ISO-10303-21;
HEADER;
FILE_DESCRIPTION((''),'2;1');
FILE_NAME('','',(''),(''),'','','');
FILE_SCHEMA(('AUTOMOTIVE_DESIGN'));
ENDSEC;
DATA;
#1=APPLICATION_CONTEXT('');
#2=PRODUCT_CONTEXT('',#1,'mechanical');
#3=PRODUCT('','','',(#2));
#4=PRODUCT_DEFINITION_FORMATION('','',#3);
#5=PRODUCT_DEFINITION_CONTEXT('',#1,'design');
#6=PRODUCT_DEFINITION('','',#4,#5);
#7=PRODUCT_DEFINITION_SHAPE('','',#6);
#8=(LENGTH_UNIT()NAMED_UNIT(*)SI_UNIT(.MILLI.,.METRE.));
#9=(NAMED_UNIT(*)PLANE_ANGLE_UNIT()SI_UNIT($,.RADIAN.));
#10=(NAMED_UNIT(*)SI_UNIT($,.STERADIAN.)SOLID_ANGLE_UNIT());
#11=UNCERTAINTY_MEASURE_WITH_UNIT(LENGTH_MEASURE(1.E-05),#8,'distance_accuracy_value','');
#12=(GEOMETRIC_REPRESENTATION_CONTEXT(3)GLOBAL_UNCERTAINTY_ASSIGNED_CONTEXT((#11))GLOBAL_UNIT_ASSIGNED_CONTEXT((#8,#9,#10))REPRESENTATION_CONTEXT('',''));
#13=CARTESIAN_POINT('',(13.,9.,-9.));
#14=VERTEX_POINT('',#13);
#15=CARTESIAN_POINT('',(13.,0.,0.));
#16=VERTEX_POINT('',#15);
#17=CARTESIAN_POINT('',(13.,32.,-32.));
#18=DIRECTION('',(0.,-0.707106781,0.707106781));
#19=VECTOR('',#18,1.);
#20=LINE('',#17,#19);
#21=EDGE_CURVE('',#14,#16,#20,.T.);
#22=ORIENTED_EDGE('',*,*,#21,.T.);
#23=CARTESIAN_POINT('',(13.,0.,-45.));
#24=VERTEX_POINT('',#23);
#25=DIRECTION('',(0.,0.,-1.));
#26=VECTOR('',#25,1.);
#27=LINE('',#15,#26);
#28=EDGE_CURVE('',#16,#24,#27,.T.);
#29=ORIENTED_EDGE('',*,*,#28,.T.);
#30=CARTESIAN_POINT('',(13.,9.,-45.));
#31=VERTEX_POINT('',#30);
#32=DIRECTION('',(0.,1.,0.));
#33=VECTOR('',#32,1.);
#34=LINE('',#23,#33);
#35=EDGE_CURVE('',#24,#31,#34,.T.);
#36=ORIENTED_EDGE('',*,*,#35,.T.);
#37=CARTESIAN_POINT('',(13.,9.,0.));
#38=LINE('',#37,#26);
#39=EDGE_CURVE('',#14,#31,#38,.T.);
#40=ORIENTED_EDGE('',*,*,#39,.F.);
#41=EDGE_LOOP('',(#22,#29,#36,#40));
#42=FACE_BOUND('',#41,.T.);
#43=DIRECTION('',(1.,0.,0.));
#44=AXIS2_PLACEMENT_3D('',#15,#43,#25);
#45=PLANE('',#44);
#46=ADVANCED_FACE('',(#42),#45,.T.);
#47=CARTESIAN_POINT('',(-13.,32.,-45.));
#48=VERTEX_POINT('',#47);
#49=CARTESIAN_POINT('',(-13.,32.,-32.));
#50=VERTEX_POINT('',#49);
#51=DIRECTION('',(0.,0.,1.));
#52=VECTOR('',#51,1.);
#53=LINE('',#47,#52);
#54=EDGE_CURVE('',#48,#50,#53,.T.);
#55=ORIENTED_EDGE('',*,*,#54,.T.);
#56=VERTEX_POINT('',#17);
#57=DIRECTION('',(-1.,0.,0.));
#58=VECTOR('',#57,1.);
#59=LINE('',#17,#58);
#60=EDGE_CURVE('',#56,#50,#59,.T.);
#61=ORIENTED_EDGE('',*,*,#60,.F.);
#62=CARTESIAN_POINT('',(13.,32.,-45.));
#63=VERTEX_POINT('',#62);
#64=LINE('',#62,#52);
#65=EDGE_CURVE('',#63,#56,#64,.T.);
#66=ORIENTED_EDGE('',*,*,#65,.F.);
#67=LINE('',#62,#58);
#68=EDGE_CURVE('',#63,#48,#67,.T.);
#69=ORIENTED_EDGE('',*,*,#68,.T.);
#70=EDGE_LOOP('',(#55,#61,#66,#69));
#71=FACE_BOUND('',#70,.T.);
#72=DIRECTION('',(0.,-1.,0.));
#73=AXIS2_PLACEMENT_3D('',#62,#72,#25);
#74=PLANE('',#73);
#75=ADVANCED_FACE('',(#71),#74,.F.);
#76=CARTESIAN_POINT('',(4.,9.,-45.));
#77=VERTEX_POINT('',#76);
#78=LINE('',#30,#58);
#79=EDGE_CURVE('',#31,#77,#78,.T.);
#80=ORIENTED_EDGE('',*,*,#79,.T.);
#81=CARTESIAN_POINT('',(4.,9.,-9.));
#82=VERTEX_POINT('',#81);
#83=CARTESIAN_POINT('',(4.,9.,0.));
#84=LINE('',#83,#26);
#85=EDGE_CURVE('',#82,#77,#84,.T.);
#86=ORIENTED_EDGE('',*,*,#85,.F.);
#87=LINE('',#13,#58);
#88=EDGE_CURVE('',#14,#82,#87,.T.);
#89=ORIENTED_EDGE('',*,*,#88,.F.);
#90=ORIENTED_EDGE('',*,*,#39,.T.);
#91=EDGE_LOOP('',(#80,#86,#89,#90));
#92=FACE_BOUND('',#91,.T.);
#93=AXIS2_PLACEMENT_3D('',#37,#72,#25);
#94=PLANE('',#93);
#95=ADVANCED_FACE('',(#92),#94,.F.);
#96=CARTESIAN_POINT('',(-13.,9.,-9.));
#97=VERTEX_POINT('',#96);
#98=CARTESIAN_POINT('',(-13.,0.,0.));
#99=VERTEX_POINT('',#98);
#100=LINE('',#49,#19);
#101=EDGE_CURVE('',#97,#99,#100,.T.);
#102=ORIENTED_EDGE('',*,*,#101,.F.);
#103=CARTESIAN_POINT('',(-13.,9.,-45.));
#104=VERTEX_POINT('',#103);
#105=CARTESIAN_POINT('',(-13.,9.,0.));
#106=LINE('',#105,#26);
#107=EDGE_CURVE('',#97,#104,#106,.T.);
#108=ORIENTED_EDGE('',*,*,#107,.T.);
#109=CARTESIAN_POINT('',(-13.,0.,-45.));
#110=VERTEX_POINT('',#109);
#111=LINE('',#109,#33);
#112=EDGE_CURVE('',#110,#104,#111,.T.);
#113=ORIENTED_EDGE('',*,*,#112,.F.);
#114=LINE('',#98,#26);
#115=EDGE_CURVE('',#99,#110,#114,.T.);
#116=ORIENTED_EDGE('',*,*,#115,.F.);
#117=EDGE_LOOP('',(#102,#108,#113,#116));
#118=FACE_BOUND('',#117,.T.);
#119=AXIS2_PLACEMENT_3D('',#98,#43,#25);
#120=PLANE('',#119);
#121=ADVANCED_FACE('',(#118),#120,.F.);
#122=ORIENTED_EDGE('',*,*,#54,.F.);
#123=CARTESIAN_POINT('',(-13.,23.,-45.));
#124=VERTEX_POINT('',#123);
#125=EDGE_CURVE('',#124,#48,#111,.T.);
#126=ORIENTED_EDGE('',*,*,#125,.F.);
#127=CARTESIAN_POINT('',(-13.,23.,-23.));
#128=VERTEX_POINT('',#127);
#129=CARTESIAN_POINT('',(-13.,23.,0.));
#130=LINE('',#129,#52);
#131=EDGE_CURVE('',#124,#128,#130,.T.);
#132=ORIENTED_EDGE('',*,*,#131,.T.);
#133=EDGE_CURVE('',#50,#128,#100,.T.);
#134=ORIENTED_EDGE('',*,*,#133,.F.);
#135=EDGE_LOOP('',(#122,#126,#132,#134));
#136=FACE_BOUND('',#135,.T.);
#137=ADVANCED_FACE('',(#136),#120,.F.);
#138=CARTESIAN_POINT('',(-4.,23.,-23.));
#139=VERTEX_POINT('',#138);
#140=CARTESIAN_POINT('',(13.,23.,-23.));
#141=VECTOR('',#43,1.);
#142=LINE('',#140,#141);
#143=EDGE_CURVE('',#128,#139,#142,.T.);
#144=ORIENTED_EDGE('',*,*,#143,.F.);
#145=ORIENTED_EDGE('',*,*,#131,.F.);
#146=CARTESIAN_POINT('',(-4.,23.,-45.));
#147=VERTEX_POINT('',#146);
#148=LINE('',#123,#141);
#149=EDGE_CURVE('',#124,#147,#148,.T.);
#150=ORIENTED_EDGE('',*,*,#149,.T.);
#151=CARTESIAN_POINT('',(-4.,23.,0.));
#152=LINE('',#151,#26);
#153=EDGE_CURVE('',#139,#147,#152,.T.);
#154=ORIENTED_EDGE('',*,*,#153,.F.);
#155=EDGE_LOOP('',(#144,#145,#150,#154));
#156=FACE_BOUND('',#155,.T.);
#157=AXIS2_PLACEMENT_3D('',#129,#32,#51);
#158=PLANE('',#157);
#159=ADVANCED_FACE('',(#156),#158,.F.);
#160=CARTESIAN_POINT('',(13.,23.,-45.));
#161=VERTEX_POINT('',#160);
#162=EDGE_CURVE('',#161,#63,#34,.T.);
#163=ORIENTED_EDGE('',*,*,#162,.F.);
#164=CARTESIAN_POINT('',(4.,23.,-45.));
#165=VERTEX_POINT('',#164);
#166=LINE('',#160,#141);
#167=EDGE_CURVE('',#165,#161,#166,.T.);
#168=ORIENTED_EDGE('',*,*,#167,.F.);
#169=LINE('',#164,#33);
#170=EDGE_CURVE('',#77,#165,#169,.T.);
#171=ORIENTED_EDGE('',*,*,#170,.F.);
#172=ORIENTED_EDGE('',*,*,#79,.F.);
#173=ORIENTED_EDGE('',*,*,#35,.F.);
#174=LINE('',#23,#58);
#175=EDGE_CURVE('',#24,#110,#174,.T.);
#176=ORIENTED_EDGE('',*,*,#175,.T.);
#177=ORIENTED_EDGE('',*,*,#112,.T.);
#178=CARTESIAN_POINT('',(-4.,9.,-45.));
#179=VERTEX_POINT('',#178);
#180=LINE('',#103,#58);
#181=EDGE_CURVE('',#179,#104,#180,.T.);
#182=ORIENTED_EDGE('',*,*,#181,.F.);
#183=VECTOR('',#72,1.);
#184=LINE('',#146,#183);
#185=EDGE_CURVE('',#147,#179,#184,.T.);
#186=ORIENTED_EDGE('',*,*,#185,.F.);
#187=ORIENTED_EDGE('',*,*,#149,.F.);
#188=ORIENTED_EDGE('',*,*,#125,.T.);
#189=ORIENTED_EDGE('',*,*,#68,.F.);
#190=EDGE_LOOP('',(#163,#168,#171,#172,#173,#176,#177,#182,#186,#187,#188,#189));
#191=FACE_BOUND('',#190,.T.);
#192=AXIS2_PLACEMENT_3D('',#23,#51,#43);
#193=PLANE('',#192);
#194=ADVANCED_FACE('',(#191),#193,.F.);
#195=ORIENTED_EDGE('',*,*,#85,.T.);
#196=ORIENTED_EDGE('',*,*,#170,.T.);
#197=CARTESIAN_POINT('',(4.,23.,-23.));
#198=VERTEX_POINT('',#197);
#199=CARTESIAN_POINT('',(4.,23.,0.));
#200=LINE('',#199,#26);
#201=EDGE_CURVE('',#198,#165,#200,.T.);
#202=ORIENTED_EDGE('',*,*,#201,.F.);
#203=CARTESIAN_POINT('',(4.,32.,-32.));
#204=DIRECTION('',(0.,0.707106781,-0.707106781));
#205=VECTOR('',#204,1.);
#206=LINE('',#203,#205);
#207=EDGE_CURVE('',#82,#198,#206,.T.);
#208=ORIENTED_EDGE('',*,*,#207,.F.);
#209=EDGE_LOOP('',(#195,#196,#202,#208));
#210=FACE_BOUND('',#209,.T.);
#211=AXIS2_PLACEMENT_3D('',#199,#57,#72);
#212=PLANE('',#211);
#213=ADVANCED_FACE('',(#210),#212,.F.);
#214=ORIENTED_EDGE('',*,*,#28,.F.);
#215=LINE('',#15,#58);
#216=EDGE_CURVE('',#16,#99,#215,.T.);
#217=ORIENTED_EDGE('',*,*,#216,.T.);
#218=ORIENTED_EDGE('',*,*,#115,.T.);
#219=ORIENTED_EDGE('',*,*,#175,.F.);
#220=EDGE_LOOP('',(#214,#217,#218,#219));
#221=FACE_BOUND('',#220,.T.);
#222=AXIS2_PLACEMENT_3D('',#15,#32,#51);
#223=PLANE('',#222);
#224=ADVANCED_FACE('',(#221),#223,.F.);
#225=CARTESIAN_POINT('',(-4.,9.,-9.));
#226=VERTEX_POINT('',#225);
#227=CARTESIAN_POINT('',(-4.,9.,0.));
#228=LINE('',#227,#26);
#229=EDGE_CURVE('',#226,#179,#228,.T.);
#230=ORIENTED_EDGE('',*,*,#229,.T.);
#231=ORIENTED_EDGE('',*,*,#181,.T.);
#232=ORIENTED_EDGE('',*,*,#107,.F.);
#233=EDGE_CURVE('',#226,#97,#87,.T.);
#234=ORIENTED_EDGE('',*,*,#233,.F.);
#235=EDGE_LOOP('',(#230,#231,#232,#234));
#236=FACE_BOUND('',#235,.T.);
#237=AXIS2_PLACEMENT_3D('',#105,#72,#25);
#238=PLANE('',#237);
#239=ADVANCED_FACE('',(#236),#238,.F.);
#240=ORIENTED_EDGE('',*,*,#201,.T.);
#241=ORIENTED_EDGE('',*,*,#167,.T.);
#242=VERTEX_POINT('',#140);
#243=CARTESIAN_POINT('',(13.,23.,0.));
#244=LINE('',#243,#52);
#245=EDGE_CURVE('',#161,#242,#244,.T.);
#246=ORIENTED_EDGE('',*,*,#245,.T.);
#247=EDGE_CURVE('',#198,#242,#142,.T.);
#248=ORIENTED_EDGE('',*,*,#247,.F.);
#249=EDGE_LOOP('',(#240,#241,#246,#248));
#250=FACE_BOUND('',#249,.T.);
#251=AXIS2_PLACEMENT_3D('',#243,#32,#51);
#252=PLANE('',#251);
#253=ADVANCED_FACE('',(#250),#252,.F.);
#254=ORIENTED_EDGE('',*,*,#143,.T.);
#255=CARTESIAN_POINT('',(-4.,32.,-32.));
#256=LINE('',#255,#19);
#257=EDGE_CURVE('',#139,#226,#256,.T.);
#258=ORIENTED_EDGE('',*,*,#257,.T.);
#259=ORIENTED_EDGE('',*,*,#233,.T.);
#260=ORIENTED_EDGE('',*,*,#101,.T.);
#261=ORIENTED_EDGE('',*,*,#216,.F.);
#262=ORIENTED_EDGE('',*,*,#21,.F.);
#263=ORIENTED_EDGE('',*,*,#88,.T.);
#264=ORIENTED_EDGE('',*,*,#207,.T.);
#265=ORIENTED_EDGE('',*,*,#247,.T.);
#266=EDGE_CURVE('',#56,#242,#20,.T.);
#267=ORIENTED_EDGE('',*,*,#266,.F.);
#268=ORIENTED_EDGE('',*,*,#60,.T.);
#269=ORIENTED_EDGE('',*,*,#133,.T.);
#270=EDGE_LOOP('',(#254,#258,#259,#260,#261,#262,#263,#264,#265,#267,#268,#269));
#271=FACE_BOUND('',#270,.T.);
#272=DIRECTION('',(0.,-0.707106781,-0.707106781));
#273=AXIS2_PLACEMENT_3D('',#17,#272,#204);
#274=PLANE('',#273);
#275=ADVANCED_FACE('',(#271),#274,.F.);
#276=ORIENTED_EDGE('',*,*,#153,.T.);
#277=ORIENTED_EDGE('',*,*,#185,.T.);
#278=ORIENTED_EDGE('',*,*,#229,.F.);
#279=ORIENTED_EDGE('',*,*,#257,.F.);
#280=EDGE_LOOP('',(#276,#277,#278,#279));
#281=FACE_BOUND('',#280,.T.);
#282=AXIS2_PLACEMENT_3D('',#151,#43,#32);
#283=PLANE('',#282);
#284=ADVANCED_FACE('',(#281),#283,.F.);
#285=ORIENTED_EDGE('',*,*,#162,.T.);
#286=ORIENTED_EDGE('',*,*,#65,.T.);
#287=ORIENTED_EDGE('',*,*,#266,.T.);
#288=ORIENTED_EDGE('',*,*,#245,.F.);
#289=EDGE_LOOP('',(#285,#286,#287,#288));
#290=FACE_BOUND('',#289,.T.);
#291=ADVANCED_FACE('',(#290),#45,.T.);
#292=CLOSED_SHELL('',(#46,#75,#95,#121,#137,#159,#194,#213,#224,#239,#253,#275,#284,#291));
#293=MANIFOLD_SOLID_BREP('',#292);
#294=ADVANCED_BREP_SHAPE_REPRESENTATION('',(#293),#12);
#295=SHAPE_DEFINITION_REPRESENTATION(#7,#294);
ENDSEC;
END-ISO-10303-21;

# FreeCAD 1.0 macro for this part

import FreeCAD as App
import Part
import Sketcher
from FreeCAD import Vector


def add_polygon(sketch, points):
    """Adds a closed chain of lines whose ends are joined by coincident constraints."""
    first, n = sketch.GeometryCount, len(points)
    for a, b in zip(points, points[1:] + points[:1]):
        sketch.addGeometry(Part.LineSegment(App.Vector(*a, 0), App.Vector(*b, 0)), False)
    for i in range(n):
        sketch.addConstraint(Sketcher.Constraint("Coincident", first + i, 2, first + (i + 1) % n, 1))

doc = App.newDocument("Part")
body = doc.addObject("PartDesign::Body", "Body")

sketch1 = body.newObject("Sketcher::SketchObject", "Sketch")
sketch1.AttachmentSupport = (doc.getObject("YZ_Plane"), [""])
sketch1.MapMode = "FlatFace"
add_polygon(sketch1, [(0, 0), (0, -45), (32, -45), (32, -32)])
sketch1.addConstraint(Sketcher.Constraint("Vertical", 0))
sketch1.addConstraint(Sketcher.Constraint("Horizontal", 1))
sketch1.addConstraint(Sketcher.Constraint("Vertical", 2))
sketch1.addConstraint(Sketcher.Constraint("Coincident", 3, 2, -1, 1))
sketch1.addConstraint(Sketcher.Constraint("DistanceX", 1, 1, 1, 2, 32.0))
sketch1.addConstraint(Sketcher.Constraint("DistanceY", 0, 2, 0, 1, 45.0))
sketch1.addConstraint(Sketcher.Constraint("DistanceY", 2, 1, 2, 2, 13.0))
pad1 = body.newObject("PartDesign::Pad", "Pad")
pad1.Profile = sketch1
pad1.Length = 26
pad1.Midplane = True

sketch2 = body.newObject("Sketcher::SketchObject", "Sketch001")
sketch2.AttachmentSupport = (doc.getObject("XY_Plane"), [""])
sketch2.MapMode = "FlatFace"
sketch2.AttachmentOffset = App.Placement(Vector(0, 0, -45), App.Rotation())
add_polygon(sketch2, [(13, 23), (13, 9), (4, 9), (4, 23)])
add_polygon(sketch2, [(-4, 23), (-4, 9), (-13, 9), (-13, 23)])
sketch2.addConstraint(Sketcher.Constraint("Vertical", 0))
sketch2.addConstraint(Sketcher.Constraint("Horizontal", 1))
sketch2.addConstraint(Sketcher.Constraint("Vertical", 2))
sketch2.addConstraint(Sketcher.Constraint("Horizontal", 3))
sketch2.addConstraint(Sketcher.Constraint("Vertical", 4))
sketch2.addConstraint(Sketcher.Constraint("Horizontal", 5))
sketch2.addConstraint(Sketcher.Constraint("Vertical", 6))
sketch2.addConstraint(Sketcher.Constraint("Horizontal", 7))
sketch2.addConstraint(Sketcher.Constraint("Symmetric", 1, 2, 4, 2, -2))
sketch2.addConstraint(Sketcher.Constraint("Symmetric", 3, 2, 6, 2, -2))
sketch2.addConstraint(Sketcher.Constraint("DistanceX", 1, 2, 1, 1, 9.0))
sketch2.addConstraint(Sketcher.Constraint("DistanceY", 0, 2, 0, 1, 14.0))
sketch2.addConstraint(Sketcher.Constraint("DistanceX", -1, 1, 0, 2, 13.0))
sketch2.addConstraint(Sketcher.Constraint("DistanceY", -1, 1, 0, 2, 9.0))
pocket1 = body.newObject("PartDesign::Pocket", "Pocket")
pocket1.Profile = sketch2
pocket1.Type = "ThroughAll"
pocket1.Reversed = True

doc.recompute()
